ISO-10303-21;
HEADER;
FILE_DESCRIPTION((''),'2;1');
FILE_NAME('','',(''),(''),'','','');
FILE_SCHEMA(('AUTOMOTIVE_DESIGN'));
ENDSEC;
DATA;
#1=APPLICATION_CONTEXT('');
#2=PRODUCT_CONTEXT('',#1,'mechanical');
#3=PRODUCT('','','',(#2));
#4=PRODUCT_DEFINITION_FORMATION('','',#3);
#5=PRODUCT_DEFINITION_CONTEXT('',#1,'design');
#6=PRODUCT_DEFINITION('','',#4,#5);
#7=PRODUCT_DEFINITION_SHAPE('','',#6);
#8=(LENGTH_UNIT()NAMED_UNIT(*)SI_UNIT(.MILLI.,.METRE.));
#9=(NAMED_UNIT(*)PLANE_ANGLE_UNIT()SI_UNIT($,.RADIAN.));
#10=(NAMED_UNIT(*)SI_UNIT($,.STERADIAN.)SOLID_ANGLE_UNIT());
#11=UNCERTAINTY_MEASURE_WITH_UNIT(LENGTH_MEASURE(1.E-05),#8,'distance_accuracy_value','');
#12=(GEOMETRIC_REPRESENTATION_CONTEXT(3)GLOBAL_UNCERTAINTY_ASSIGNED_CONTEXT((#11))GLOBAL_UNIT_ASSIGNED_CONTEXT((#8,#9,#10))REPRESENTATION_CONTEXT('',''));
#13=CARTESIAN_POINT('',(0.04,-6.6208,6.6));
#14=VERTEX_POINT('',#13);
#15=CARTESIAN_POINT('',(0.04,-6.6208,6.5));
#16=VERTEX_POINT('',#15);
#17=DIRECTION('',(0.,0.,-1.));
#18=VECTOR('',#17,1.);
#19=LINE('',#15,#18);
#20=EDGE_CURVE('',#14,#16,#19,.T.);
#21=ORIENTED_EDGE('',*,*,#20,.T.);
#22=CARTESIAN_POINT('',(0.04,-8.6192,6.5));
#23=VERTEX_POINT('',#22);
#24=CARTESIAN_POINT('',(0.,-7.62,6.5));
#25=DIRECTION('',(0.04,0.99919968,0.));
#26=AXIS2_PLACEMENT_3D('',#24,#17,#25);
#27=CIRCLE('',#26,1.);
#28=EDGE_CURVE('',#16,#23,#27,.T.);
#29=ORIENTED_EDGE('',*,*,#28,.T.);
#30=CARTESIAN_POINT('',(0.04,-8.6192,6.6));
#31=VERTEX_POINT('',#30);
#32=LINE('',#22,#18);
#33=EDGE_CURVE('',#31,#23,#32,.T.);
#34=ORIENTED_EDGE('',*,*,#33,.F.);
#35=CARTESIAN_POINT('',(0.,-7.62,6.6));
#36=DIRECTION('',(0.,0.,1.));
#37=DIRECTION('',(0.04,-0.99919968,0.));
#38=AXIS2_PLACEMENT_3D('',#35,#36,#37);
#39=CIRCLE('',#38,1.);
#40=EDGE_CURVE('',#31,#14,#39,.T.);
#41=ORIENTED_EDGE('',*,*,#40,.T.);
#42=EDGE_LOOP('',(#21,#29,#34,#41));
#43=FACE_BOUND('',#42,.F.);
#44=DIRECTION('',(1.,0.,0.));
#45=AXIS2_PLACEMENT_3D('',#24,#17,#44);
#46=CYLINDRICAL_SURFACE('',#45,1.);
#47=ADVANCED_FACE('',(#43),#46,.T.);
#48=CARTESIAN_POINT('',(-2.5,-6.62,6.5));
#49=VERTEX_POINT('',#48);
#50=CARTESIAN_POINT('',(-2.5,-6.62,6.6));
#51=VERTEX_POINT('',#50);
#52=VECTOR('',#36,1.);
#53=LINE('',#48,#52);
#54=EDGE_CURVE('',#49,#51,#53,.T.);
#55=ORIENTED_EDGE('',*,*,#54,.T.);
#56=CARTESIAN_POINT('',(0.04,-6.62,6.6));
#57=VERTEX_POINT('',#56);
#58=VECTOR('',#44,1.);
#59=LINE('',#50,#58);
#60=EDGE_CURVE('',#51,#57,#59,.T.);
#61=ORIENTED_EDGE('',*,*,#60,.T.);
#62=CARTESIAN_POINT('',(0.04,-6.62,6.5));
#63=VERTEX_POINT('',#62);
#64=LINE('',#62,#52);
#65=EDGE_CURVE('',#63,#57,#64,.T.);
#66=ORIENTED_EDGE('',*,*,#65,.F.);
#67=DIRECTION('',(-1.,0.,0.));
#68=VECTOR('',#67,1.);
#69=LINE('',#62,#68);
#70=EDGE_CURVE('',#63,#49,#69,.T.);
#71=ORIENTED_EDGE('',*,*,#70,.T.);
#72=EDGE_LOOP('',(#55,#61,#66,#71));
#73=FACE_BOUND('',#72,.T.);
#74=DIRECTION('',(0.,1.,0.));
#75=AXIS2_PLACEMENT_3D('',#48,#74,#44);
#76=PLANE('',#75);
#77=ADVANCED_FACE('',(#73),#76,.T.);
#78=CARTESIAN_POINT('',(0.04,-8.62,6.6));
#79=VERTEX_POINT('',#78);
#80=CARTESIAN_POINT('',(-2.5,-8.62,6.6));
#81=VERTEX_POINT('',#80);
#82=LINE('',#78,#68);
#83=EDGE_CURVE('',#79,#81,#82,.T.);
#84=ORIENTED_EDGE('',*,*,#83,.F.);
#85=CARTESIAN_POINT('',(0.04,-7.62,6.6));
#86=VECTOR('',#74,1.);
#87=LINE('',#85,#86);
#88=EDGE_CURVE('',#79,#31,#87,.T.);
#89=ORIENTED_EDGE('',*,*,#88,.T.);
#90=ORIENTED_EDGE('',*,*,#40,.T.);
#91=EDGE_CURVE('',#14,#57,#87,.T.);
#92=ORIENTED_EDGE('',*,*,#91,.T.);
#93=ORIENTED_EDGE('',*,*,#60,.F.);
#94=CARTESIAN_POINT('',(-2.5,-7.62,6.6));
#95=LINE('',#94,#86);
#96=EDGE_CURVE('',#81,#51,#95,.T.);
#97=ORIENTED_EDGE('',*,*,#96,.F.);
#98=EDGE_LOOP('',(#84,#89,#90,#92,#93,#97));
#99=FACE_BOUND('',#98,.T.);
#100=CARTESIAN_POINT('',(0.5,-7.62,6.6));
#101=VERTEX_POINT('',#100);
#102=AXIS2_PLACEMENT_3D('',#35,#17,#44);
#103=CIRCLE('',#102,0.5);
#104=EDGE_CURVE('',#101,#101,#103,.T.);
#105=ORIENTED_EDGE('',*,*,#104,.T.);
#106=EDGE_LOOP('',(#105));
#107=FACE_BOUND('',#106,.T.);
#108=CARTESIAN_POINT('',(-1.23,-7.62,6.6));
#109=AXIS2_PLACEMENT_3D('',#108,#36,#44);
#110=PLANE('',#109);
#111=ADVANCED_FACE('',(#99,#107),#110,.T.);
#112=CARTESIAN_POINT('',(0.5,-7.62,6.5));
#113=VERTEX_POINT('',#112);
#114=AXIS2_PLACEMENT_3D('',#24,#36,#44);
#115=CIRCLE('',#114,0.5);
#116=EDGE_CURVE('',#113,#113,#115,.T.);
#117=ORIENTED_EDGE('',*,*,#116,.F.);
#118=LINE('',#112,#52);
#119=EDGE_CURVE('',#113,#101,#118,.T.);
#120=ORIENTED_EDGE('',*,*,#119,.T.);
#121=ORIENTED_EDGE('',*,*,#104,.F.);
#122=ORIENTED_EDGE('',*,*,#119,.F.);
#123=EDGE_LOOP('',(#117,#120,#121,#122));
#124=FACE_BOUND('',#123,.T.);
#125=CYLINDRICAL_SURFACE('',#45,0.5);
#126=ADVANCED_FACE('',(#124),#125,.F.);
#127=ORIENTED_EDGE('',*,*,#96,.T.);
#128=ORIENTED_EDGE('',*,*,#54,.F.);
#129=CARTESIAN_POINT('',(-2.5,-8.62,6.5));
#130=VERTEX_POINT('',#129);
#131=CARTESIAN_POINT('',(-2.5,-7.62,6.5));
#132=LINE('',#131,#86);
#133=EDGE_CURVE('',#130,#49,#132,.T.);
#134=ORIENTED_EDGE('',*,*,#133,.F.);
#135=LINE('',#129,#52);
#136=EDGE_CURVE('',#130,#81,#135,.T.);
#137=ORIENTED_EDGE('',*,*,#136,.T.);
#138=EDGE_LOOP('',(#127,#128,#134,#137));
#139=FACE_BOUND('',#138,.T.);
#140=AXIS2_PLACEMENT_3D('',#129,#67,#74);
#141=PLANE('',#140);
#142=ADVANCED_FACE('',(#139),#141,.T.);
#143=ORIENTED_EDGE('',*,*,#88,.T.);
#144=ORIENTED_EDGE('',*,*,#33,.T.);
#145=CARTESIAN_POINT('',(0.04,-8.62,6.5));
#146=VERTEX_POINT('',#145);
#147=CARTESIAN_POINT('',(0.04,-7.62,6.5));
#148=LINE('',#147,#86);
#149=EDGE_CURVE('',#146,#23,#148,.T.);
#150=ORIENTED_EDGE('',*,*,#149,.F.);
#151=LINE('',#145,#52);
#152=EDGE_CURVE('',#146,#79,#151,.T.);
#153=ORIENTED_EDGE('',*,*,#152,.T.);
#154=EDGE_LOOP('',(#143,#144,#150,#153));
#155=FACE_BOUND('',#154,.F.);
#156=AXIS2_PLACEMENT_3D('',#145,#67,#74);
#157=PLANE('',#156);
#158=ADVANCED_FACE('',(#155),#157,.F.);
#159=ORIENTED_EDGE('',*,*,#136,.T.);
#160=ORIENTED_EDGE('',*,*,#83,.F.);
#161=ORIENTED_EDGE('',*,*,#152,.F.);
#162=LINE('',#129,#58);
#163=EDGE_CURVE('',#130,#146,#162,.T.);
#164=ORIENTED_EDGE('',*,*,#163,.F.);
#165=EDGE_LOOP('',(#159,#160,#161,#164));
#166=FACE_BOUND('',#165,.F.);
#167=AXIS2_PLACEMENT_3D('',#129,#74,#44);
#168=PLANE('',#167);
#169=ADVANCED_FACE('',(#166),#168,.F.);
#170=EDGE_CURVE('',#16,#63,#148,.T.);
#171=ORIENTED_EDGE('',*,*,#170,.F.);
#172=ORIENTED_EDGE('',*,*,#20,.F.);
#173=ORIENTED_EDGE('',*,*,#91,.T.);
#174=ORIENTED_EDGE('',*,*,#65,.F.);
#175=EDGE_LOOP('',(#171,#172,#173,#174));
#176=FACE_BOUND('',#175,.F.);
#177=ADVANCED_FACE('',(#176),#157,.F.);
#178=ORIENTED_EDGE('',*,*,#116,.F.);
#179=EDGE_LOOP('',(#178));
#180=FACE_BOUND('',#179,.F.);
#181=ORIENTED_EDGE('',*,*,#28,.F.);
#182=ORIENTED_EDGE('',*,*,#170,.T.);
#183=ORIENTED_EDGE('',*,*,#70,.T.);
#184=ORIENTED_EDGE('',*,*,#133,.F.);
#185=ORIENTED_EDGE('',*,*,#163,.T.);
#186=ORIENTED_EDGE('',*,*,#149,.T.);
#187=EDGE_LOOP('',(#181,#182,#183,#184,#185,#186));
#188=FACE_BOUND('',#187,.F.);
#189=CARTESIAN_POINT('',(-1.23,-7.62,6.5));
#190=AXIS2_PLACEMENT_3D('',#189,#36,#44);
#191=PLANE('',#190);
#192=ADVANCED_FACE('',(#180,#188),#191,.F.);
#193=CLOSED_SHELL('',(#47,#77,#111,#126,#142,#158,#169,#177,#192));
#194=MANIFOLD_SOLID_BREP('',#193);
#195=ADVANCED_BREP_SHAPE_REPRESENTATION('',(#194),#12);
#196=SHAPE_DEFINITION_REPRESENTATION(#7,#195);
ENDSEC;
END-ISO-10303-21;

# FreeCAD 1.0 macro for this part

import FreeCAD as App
import Part
import Sketcher

V = App.Vector
Q = App.Units.Quantity


def add_polygon(sketch, points):
    """Adds a closed chain of lines whose ends are joined by coincident constraints."""
    first, n = sketch.GeometryCount, len(points)
    for a, b in zip(points, points[1:] + points[:1]):
        sketch.addGeometry(Part.LineSegment(App.Vector(*a, 0), App.Vector(*b, 0)), False)
    for i in range(n):
        sketch.addConstraint(Sketcher.Constraint("Coincident", first + i, 2, first + (i + 1) % n, 1))

doc = App.newDocument("Part")
body = doc.addObject("PartDesign::Body", "Body")

# Sketch on XY plane
sketch1 = body.newObject("Sketcher::SketchObject", "Sketch")
sketch1.AttachmentSupport = (doc.getObject("XY_Plane"), [""])
sketch1.MapMode = "FlatFace"
sketch1.AttachmentOffset = App.Placement(V(0, 0, 1), App.Rotation())
sketch1.addGeometry(Part.Circle(V(0, 0, 0), V(0, 0, 1), 0.5), False)
sketch1.addConstraint([
    Sketcher.Constraint("Coincident", 0, 3, -1, 1),
    Sketcher.Constraint("Diameter", 0, Q("1 mm")),
])
pad1 = body.newObject("PartDesign::Pad", "Pad")
pad1.Profile = sketch1
pad1.Length = 0.1
body2 = doc.addObject("PartDesign::Body", "Body001")

# Sketch on XY plane
sketch2 = body2.newObject("Sketcher::SketchObject", "Sketch001")
sketch2.AttachmentSupport = (doc.getObject("XY_Plane001"), [""])
sketch2.MapMode = "FlatFace"
sketch2.AttachmentOffset = App.Placement(V(0, 0, 1), App.Rotation())
add_polygon(sketch2, [(-2.5, 1), (-2.5, -1), (0, -1), (0, 1)])  # lines 0-3
sketch2.addConstraint([
    Sketcher.Constraint("Vertical", 0),
    Sketcher.Constraint("Horizontal", 1),
    Sketcher.Constraint("Vertical", 2),
    Sketcher.Constraint("Horizontal", 3),
    Sketcher.Constraint("DistanceY", 0, 2, 0, 1, Q("2 mm")),
    Sketcher.Constraint("DistanceY", 0, 2, -1, 1, Q("1 mm")),
    Sketcher.Constraint("DistanceX", 1, 1, 1, 2, Q("2.54 mm")),
    Sketcher.Constraint("DistanceX", 0, 2, -1, 1, Q("2.5 mm")),
])
pad2 = body2.newObject("PartDesign::Pad", "Pad001")
pad2.Profile = sketch2
pad2.Length = 0.1
doc.recompute()

boolean = body2.newObject("PartDesign::Boolean", "Boolean")
boolean.Type = "Cut"
boolean.addObjects([body])
body3 = doc.addObject("PartDesign::Body", "Body002")

# Sketch on XY plane
sketch3 = body3.newObject("Sketcher::SketchObject", "Sketch002")
sketch3.AttachmentSupport = (doc.getObject("XY_Plane002"), [""])
sketch3.MapMode = "FlatFace"
sketch3.AttachmentOffset = App.Placement(V(0, 0, 1), App.Rotation())
sketch3.addGeometry(Part.Circle(V(0, 0, 0), V(0, 0, 1), 0.5), False)
sketch3.addConstraint([
    Sketcher.Constraint("Coincident", 0, 3, -1, 1),
    Sketcher.Constraint("Diameter", 0, Q("1 mm")),
])
pad3 = body3.newObject("PartDesign::Pad", "Pad002")
pad3.Profile = sketch3
pad3.Length = 0.1
body4 = doc.addObject("PartDesign::Body", "Body003")

# Sketch on XY plane
sketch4 = body4.newObject("Sketcher::SketchObject", "Sketch003")
sketch4.AttachmentSupport = (doc.getObject("XY_Plane003"), [""])
sketch4.MapMode = "FlatFace"
sketch4.AttachmentOffset = App.Placement(V(0, 0, 1), App.Rotation())
sketch4.addGeometry(Part.Circle(V(0, 0, 0), V(0, 0, 1), 1), False)
sketch4.addConstraint([
    Sketcher.Constraint("Coincident", 0, 3, -1, 1),
    Sketcher.Constraint("Diameter", 0, Q("2 mm")),
])
pad4 = body4.newObject("PartDesign::Pad", "Pad003")
pad4.Profile = sketch4
pad4.Length = 0.1
doc.recompute()

boolean2 = body4.newObject("PartDesign::Boolean", "Boolean001")
boolean2.Type = "Cut"
boolean2.addObjects([body3])
doc.recompute()

boolean3 = body4.newObject("PartDesign::Boolean", "Boolean002")
boolean3.Type = "Fuse"
boolean3.addObjects([body2])
body5 = doc.addObject("PartDesign::Body", "Body004")
doc.recompute()

body4.Placement = App.Placement(V(0, -7.62, 5.5), App.Rotation(V(0, 0, 1), 0))
boolean4 = body5.newObject("PartDesign::Boolean", "Boolean003")
boolean4.Type = "Fuse"
boolean4.addObjects([body4])

doc.recompute()
